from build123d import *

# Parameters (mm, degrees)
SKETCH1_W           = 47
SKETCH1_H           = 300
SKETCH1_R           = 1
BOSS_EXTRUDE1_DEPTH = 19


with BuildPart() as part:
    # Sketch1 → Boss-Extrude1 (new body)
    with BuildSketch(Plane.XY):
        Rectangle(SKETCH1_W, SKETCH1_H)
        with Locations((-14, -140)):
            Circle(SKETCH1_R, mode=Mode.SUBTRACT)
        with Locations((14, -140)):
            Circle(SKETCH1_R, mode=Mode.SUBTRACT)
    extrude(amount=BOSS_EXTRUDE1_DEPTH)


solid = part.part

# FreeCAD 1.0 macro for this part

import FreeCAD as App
import Part
import Sketcher
Q = App.Units.Quantity


def add_polygon(sketch, points):
    """Adds a closed chain of lines whose ends are joined by coincident constraints."""
    first, n = sketch.GeometryCount, len(points)
    for a, b in zip(points, points[1:] + points[:1]):
        sketch.addGeometry(Part.LineSegment(App.Vector(*a, 0), App.Vector(*b, 0)), False)
    for i in range(n):
        sketch.addConstraint(Sketcher.Constraint("Coincident", first + i, 2, first + (i + 1) % n, 1))

doc = App.newDocument("Part")
body = doc.addObject("PartDesign::Body", "Body")

# Sketch on XY plane
sketch1 = body.newObject("Sketcher::SketchObject", "Sketch")
sketch1.AttachmentSupport = (doc.getObject("XY_Plane"), [""])
sketch1.MapMode = "FlatFace"
add_polygon(sketch1, [(-23.5, 150), (-23.5, -150), (23.5, -150), (23.5, 150)])  # lines 0-3
sketch1.addGeometry(Part.Circle(App.Vector(-14, -140, 0), App.Vector(0, 0, 1), 1), False)  # 4
sketch1.addGeometry(Part.Circle(App.Vector(14, -140, 0), App.Vector(0, 0, 1), 1), False)  # 5
sketch1.addConstraint([
    Sketcher.Constraint("Vertical", 0),
    Sketcher.Constraint("Horizontal", 1),
    Sketcher.Constraint("Vertical", 2),
    Sketcher.Constraint("Horizontal", 3),
    Sketcher.Constraint("Equal", 4, 5),
    Sketcher.Constraint("Symmetric", 0, 2, 2, 2, -1, 1),
    Sketcher.Constraint("Symmetric", 4, 3, 5, 3, -2),
    Sketcher.Constraint("Diameter", 4, Q("2 mm")),
    Sketcher.Constraint("DistanceX", 1, 1, 1, 2, Q("47 mm")),
    Sketcher.Constraint("DistanceY", 0, 2, 0, 1, Q("300 mm")),
    Sketcher.Constraint("DistanceX", 4, 3, -1, 1, Q("14 mm")),
    Sketcher.Constraint("DistanceY", 4, 3, -1, 1, Q("140 mm")),
])
pad1 = body.newObject("PartDesign::Pad", "Pad")
pad1.Profile = sketch1
pad1.Length = 19

doc.recompute()
